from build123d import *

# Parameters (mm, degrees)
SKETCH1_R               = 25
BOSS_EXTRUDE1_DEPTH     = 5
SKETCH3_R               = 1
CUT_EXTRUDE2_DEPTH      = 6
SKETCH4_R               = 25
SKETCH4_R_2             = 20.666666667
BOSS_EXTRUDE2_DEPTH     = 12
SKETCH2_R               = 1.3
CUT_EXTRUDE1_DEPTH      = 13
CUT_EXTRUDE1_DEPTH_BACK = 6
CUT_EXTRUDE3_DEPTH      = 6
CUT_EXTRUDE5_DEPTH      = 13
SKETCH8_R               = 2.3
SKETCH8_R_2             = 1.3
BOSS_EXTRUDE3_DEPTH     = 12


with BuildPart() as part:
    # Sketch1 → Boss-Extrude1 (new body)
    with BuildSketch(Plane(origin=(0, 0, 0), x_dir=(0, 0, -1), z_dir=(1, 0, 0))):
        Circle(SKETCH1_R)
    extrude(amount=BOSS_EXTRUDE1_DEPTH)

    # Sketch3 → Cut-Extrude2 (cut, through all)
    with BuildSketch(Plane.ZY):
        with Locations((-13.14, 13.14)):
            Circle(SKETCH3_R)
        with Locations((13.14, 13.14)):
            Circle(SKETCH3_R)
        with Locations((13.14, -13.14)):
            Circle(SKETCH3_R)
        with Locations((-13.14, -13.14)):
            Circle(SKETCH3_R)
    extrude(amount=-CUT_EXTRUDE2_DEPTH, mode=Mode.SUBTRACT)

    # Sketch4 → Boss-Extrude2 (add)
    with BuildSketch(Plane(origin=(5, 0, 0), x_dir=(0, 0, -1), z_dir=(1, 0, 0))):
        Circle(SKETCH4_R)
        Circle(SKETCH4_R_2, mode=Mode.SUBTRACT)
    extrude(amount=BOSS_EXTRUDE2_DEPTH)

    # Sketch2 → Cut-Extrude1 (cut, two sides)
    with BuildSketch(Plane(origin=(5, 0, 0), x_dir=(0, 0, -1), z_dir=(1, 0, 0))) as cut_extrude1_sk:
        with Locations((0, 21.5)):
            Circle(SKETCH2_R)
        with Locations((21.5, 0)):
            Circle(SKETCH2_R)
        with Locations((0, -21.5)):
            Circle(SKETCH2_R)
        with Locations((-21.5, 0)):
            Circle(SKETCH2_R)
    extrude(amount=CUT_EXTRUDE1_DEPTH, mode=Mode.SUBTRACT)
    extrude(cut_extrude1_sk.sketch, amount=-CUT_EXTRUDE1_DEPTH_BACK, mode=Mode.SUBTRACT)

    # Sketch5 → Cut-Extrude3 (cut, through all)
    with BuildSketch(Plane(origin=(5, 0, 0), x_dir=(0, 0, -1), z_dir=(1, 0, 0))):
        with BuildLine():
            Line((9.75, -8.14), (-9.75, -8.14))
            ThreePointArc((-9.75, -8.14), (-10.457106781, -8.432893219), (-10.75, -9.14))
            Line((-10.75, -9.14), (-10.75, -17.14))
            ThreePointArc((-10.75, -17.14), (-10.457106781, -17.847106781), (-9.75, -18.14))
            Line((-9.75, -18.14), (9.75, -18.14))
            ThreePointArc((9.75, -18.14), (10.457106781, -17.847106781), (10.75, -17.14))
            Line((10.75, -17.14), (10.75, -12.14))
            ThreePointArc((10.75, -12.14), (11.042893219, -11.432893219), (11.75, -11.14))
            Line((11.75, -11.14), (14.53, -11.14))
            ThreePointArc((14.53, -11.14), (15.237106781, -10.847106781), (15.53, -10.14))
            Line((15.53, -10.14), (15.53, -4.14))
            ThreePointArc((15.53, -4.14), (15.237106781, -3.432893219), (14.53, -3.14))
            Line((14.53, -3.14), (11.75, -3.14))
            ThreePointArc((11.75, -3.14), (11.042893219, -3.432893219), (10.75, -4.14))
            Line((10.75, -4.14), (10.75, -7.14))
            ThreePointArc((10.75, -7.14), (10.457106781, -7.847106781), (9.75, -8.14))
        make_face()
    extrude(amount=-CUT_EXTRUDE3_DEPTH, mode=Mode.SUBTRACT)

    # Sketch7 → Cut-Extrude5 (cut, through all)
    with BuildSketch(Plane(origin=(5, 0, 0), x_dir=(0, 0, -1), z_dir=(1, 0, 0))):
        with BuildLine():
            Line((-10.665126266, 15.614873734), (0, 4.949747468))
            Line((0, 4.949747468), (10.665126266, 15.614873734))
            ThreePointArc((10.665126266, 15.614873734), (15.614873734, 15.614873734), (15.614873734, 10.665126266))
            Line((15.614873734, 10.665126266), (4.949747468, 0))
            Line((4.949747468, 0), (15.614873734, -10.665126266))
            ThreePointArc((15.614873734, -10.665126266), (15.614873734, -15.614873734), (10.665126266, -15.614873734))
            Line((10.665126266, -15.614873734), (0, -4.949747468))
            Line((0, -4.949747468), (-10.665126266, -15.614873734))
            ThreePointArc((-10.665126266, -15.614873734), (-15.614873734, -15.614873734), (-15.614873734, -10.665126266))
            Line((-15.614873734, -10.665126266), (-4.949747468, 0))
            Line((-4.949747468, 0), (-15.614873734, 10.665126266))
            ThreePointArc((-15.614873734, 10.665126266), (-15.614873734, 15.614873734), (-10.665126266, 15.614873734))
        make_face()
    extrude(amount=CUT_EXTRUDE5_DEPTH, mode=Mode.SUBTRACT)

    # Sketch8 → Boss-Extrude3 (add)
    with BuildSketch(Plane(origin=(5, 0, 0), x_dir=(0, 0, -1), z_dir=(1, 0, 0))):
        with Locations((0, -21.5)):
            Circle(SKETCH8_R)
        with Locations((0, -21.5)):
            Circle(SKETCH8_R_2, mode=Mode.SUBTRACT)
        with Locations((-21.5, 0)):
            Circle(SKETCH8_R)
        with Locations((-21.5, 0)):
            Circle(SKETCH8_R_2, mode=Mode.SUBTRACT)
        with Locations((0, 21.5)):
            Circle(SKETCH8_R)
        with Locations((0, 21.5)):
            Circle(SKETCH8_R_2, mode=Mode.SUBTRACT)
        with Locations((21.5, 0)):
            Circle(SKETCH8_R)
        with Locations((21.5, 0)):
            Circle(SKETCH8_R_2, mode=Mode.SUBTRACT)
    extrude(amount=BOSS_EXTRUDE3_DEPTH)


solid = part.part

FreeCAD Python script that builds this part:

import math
import FreeCAD as App
import Part
import Sketcher

V = App.Vector
Q = App.Units.Quantity

doc = App.newDocument("Part")
body = doc.addObject("PartDesign::Body", "Body")

sketch1 = body.newObject("Sketcher::SketchObject", "Sketch")
sketch1.AttachmentSupport = (doc.getObject("YZ_Plane"), [""])
sketch1.MapMode = "FlatFace"
sketch1.addGeometry(Part.Circle(V(0, 0, 0), V(0, 0, 1), 25), False)
sketch1.addConstraint(Sketcher.Constraint("Coincident", 0, 3, -1, 1))
sketch1.addConstraint(Sketcher.Constraint("Diameter", 0, Q("50 mm")))
pad1 = body.newObject("PartDesign::Pad", "Pad")
pad1.Profile = sketch1
pad1.Length = 5

sketch2 = body.newObject("Sketcher::SketchObject", "Sketch001")
sketch2.AttachmentSupport = (doc.getObject("YZ_Plane"), [""])
sketch2.MapMode = "FlatFace"
sketch2.addGeometry(Part.Circle(V(13.14, -13.14, 0), V(0, 0, 1), 1), False)
sketch2.addGeometry(Part.Circle(V(13.14, 13.14, 0), V(0, 0, 1), 1), False)
sketch2.addGeometry(Part.Circle(V(-13.14, 13.14, 0), V(0, 0, 1), 1), False)
sketch2.addGeometry(Part.Circle(V(-13.14, -13.14, 0), V(0, 0, 1), 1), False)
sketch2.addConstraint(Sketcher.Constraint("Equal", 0, 1))
sketch2.addConstraint(Sketcher.Constraint("Equal", 1, 2))
sketch2.addConstraint(Sketcher.Constraint("Equal", 2, 3))
sketch2.addConstraint(Sketcher.Constraint("Symmetric", 0, 3, 2, 3, -1, 1))
sketch2.addConstraint(Sketcher.Constraint("Symmetric", 1, 3, 3, 3, -1, 1))
sketch2.addConstraint(Sketcher.Constraint("Symmetric", 1, 3, 2, 3, -2))
sketch2.addConstraint(Sketcher.Constraint("Diameter", 0, Q("2 mm")))
sketch2.addConstraint(Sketcher.Constraint("DistanceX", -1, 1, 0, 3, Q("13.14 mm")))
sketch2.addConstraint(Sketcher.Constraint("DistanceY", 0, 3, -1, 1, Q("13.14 mm")))
pocket1 = body.newObject("PartDesign::Pocket", "Pocket")
pocket1.Profile = sketch2
pocket1.Type = "ThroughAll"
pocket1.Reversed = True

sketch3 = body.newObject("Sketcher::SketchObject", "Sketch002")
sketch3.AttachmentSupport = (doc.getObject("YZ_Plane"), [""])
sketch3.MapMode = "FlatFace"
sketch3.AttachmentOffset = App.Placement(V(0, 0, 5), App.Rotation())
sketch3.addGeometry(Part.Circle(V(0, 0, 0), V(0, 0, 1), 25), False)
sketch3.addGeometry(Part.Circle(V(0, 0, 0), V(0, 0, 1), 20.666667), False)
sketch3.addConstraint(Sketcher.Constraint("Coincident", 0, 3, -1, 1))
sketch3.addConstraint(Sketcher.Constraint("Coincident", 1, 3, -1, 1))
sketch3.addConstraint(Sketcher.Constraint("Diameter", 0, Q("50 mm")))
sketch3.addConstraint(Sketcher.Constraint("Diameter", 1, Q("41.333333 mm")))
pad2 = body.newObject("PartDesign::Pad", "Pad001")
pad2.Profile = sketch3
pad2.Length = 12

sketch4 = body.newObject("Sketcher::SketchObject", "Sketch003")
sketch4.AttachmentSupport = (doc.getObject("YZ_Plane"), [""])
sketch4.MapMode = "FlatFace"
sketch4.AttachmentOffset = App.Placement(V(0, 0, 5), App.Rotation())
sketch4.addGeometry(Part.Circle(V(21.5, 0, 0), V(0, 0, 1), 1.3), False)
sketch4.addGeometry(Part.Circle(V(0, -21.5, 0), V(0, 0, 1), 1.3), False)
sketch4.addGeometry(Part.Circle(V(-21.5, 0, 0), V(0, 0, 1), 1.3), False)
sketch4.addGeometry(Part.Circle(V(0, 21.5, 0), V(0, 0, 1), 1.3), False)
sketch4.addConstraint(Sketcher.Constraint("Equal", 0, 1))
sketch4.addConstraint(Sketcher.Constraint("Equal", 1, 2))
sketch4.addConstraint(Sketcher.Constraint("Equal", 2, 3))
sketch4.addConstraint(Sketcher.Constraint("Symmetric", 0, 3, 2, 3, -1, 1))
sketch4.addConstraint(Sketcher.Constraint("Symmetric", 1, 3, 3, 3, -1, 1))
sketch4.addConstraint(Sketcher.Constraint("PointOnObject", 0, 3, -1))
sketch4.addConstraint(Sketcher.Constraint("PointOnObject", 1, 3, -2))
sketch4.addConstraint(Sketcher.Constraint("Diameter", 0, Q("2.6 mm")))
sketch4.addConstraint(Sketcher.Constraint("DistanceX", 2, 3, 0, 3, Q("43 mm")))
sketch4.addConstraint(Sketcher.Constraint("DistanceY", 1, 3, 3, 3, Q("43 mm")))
pocket2 = body.newObject("PartDesign::Pocket", "Pocket001")
pocket2.Profile = sketch4
pocket2.Type = "ThroughAll"
pocket2.Midplane = True

sketch5 = body.newObject("Sketcher::SketchObject", "Sketch004")
sketch5.AttachmentSupport = (doc.getObject("YZ_Plane"), [""])
sketch5.MapMode = "FlatFace"
sketch5.AttachmentOffset = App.Placement(V(0, 0, 5), App.Rotation())
sketch5.addGeometry(Part.LineSegment(V(-8.14, -9.75, 0), V(-8.14, 9.75, 0)), False)
sketch5.addGeometry(Part.ArcOfCircle(Part.Circle(V(-9.14, 9.75, 0), V(0, 0, 1), 1), math.radians(0), math.radians(90)), False)
sketch5.addGeometry(Part.LineSegment(V(-9.14, 10.75, 0), V(-17.14, 10.75, 0)), False)
sketch5.addGeometry(Part.ArcOfCircle(Part.Circle(V(-17.14, 9.75, 0), V(0, 0, 1), 1), math.radians(90), math.radians(180)), False)
sketch5.addGeometry(Part.LineSegment(V(-18.14, 9.75, 0), V(-18.14, -9.75, 0)), False)
sketch5.addGeometry(Part.ArcOfCircle(Part.Circle(V(-17.14, -9.75, 0), V(0, 0, 1), 1), math.radians(-180), math.radians(-90)), False)
sketch5.addGeometry(Part.LineSegment(V(-17.14, -10.75, 0), V(-12.14, -10.75, 0)), False)
sketch5.addGeometry(Part.ArcOfCircle(Part.Circle(V(-12.14, -11.75, 0), V(0, 0, 1), 1), math.radians(0), math.radians(90)), False)
sketch5.addGeometry(Part.LineSegment(V(-11.14, -11.75, 0), V(-11.14, -14.53, 0)), False)
sketch5.addGeometry(Part.ArcOfCircle(Part.Circle(V(-10.14, -14.53, 0), V(0, 0, 1), 1), math.radians(-180), math.radians(-90)), False)
sketch5.addGeometry(Part.LineSegment(V(-10.14, -15.53, 0), V(-4.14, -15.53, 0)), False)
sketch5.addGeometry(Part.ArcOfCircle(Part.Circle(V(-4.14, -14.53, 0), V(0, 0, 1), 1), math.radians(-90), math.radians(0)), False)
sketch5.addGeometry(Part.LineSegment(V(-3.14, -14.53, 0), V(-3.14, -11.75, 0)), False)
sketch5.addGeometry(Part.ArcOfCircle(Part.Circle(V(-4.14, -11.75, 0), V(0, 0, 1), 1), math.radians(0), math.radians(90)), False)
sketch5.addGeometry(Part.LineSegment(V(-4.14, -10.75, 0), V(-7.14, -10.75, 0)), False)
sketch5.addGeometry(Part.ArcOfCircle(Part.Circle(V(-7.14, -9.75, 0), V(0, 0, 1), 1), math.radians(-180), math.radians(-90)), False)
sketch5.addConstraint(Sketcher.Constraint("Tangent", 0, 2, 1, 1))
sketch5.addConstraint(Sketcher.Constraint("Tangent", 1, 2, 2, 1))
sketch5.addConstraint(Sketcher.Constraint("Tangent", 2, 2, 3, 1))
sketch5.addConstraint(Sketcher.Constraint("Tangent", 3, 2, 4, 1))
sketch5.addConstraint(Sketcher.Constraint("Tangent", 4, 2, 5, 1))
sketch5.addConstraint(Sketcher.Constraint("Tangent", 5, 2, 6, 1))
sketch5.addConstraint(Sketcher.Constraint("Tangent", 6, 2, 7, 2))
sketch5.addConstraint(Sketcher.Constraint("Tangent", 7, 1, 8, 1))
sketch5.addConstraint(Sketcher.Constraint("Tangent", 8, 2, 9, 1))
sketch5.addConstraint(Sketcher.Constraint("Tangent", 9, 2, 10, 1))
sketch5.addConstraint(Sketcher.Constraint("Tangent", 10, 2, 11, 1))
sketch5.addConstraint(Sketcher.Constraint("Tangent", 11, 2, 12, 1))
sketch5.addConstraint(Sketcher.Constraint("Tangent", 12, 2, 13, 1))
sketch5.addConstraint(Sketcher.Constraint("Tangent", 13, 2, 14, 1))
sketch5.addConstraint(Sketcher.Constraint("Tangent", 14, 2, 15, 2))
sketch5.addConstraint(Sketcher.Constraint("Tangent", 15, 1, 0, 1))
sketch5.addConstraint(Sketcher.Constraint("Vertical", 0))
sketch5.addConstraint(Sketcher.Constraint("Horizontal", 2))
sketch5.addConstraint(Sketcher.Constraint("Vertical", 4))
sketch5.addConstraint(Sketcher.Constraint("Horizontal", 6))
sketch5.addConstraint(Sketcher.Constraint("Vertical", 8))
sketch5.addConstraint(Sketcher.Constraint("Horizontal", 10))
sketch5.addConstraint(Sketcher.Constraint("Vertical", 12))
sketch5.addConstraint(Sketcher.Constraint("Horizontal", 14))
sketch5.addConstraint(Sketcher.Constraint("Equal", 1, 3))
sketch5.addConstraint(Sketcher.Constraint("Equal", 3, 5))
sketch5.addConstraint(Sketcher.Constraint("Equal", 5, 7))
sketch5.addConstraint(Sketcher.Constraint("Equal", 7, 9))
sketch5.addConstraint(Sketcher.Constraint("Equal", 9, 11))
sketch5.addConstraint(Sketcher.Constraint("Equal", 11, 13))
sketch5.addConstraint(Sketcher.Constraint("Equal", 13, 15))
sketch5.addConstraint(Sketcher.Constraint("Horizontal", 7, 3, 13, 3))
sketch5.addConstraint(Sketcher.Constraint("Radius", 1, Q("1 mm")))
sketch5.addConstraint(Sketcher.Constraint("DistanceX", 2, 2, 2, 1, Q("8 mm")))
sketch5.addConstraint(Sketcher.Constraint("DistanceX", 6, 1, 6, 2, Q("5 mm")))
sketch5.addConstraint(Sketcher.Constraint("DistanceX", 10, 1, 10, 2, Q("6 mm")))
sketch5.addConstraint(Sketcher.Constraint("DistanceY", 0, 1, 0, 2, Q("19.5 mm")))
sketch5.addConstraint(Sketcher.Constraint("DistanceY", 8, 2, 8, 1, Q("2.78 mm")))
sketch5.addConstraint(Sketcher.Constraint("DistanceX", 1, 3, -1, 1, Q("9.14 mm")))
sketch5.addConstraint(Sketcher.Constraint("DistanceY", -1, 1, 1, 3, Q("9.75 mm")))
pocket3 = body.newObject("PartDesign::Pocket", "Pocket002")
pocket3.Profile = sketch5
pocket3.Type = "ThroughAll"

sketch6 = body.newObject("Sketcher::SketchObject", "Sketch005")
sketch6.AttachmentSupport = (doc.getObject("YZ_Plane"), [""])
sketch6.MapMode = "FlatFace"
sketch6.AttachmentOffset = App.Placement(V(0, 0, 5), App.Rotation())
sketch6.addGeometry(Part.LineSegment(V(4.949747, 0, 0), V(15.614874, 10.665126, 0)), False)
sketch6.addGeometry(Part.ArcOfCircle(Part.Circle(V(13.14, 13.14, 0), V(0, 0, 1), 3.5), math.radians(-45), math.radians(135)), False)
sketch6.addGeometry(Part.LineSegment(V(10.665126, 15.614874, 0), V(0, 4.949747, 0)), False)
sketch6.addGeometry(Part.LineSegment(V(0, 4.949747, 0), V(-10.665126, 15.614874, 0)), False)
sketch6.addGeometry(Part.ArcOfCircle(Part.Circle(V(-13.14, 13.14, 0), V(0, 0, 1), 3.5), math.radians(45), math.radians(225)), False)
sketch6.addGeometry(Part.LineSegment(V(-15.614874, 10.665126, 0), V(-4.949747, 0, 0)), False)
sketch6.addGeometry(Part.LineSegment(V(-4.949747, 0, 0), V(-15.614874, -10.665126, 0)), False)
sketch6.addGeometry(Part.ArcOfCircle(Part.Circle(V(-13.14, -13.14, 0), V(0, 0, 1), 3.5), math.radians(135), math.radians(315)), False)
sketch6.addGeometry(Part.LineSegment(V(-10.665126, -15.614874, 0), V(0, -4.949747, 0)), False)
sketch6.addGeometry(Part.LineSegment(V(0, -4.949747, 0), V(10.665126, -15.614874, 0)), False)
sketch6.addGeometry(Part.ArcOfCircle(Part.Circle(V(13.14, -13.14, 0), V(0, 0, 1), 3.5), math.radians(-135), math.radians(45)), False)
sketch6.addGeometry(Part.LineSegment(V(15.614874, -10.665126, 0), V(4.949747, 0, 0)), False)
sketch6.addConstraint(Sketcher.Constraint("Tangent", 0, 2, 1, 1))
sketch6.addConstraint(Sketcher.Constraint("Tangent", 1, 2, 2, 1))
sketch6.addConstraint(Sketcher.Constraint("Coincident", 2, 2, 3, 1))
sketch6.addConstraint(Sketcher.Constraint("Tangent", 3, 2, 4, 1))
sketch6.addConstraint(Sketcher.Constraint("Tangent", 4, 2, 5, 1))
sketch6.addConstraint(Sketcher.Constraint("Coincident", 5, 2, 6, 1))
sketch6.addConstraint(Sketcher.Constraint("Tangent", 6, 2, 7, 1))
sketch6.addConstraint(Sketcher.Constraint("Tangent", 7, 2, 8, 1))
sketch6.addConstraint(Sketcher.Constraint("Coincident", 8, 2, 9, 1))
sketch6.addConstraint(Sketcher.Constraint("Tangent", 9, 2, 10, 1))
sketch6.addConstraint(Sketcher.Constraint("Tangent", 10, 2, 11, 1))
sketch6.addConstraint(Sketcher.Constraint("Coincident", 11, 2, 0, 1))
sketch6.addConstraint(Sketcher.Constraint("Equal", 1, 4))
sketch6.addConstraint(Sketcher.Constraint("Equal", 4, 7))
sketch6.addConstraint(Sketcher.Constraint("Equal", 7, 10))
sketch6.addConstraint(Sketcher.Constraint("Symmetric", 1, 3, 7, 3, -1, 1))
sketch6.addConstraint(Sketcher.Constraint("Symmetric", 4, 3, 10, 3, -1, 1))
sketch6.addConstraint(Sketcher.Constraint("Symmetric", 2, 2, 8, 2, -1, 1))
sketch6.addConstraint(Sketcher.Constraint("Symmetric", 5, 2, 11, 2, -1, 1))
sketch6.addConstraint(Sketcher.Constraint("Symmetric", 1, 3, 4, 3, -2))
sketch6.addConstraint(Sketcher.Constraint("PointOnObject", 2, 2, -2))
sketch6.addConstraint(Sketcher.Constraint("PointOnObject", 5, 2, -1))
sketch6.addConstraint(Sketcher.Constraint("Parallel", 0, 2))
sketch6.addConstraint(Sketcher.Constraint("Perpendicular", 2, 3))
sketch6.addConstraint(Sketcher.Constraint("Equal", 0, 2))
sketch6.addConstraint(Sketcher.Constraint("Radius", 1, Q("3.5 mm")))
sketch6.addConstraint(Sketcher.Constraint("DistanceX", -1, 1, 1, 3, Q("13.14 mm")))
pocket4 = body.newObject("PartDesign::Pocket", "Pocket003")
pocket4.Profile = sketch6
pocket4.Type = "ThroughAll"
pocket4.Reversed = True

sketch7 = body.newObject("Sketcher::SketchObject", "Sketch006")
sketch7.AttachmentSupport = (doc.getObject("YZ_Plane"), [""])
sketch7.MapMode = "FlatFace"
sketch7.AttachmentOffset = App.Placement(V(0, 0, 5), App.Rotation())
sketch7.addGeometry(Part.Circle(V(-21.5, 0, 0), V(0, 0, 1), 2.3), False)
sketch7.addGeometry(Part.Circle(V(-21.5, 0, 0), V(0, 0, 1), 1.3), False)
sketch7.addGeometry(Part.Circle(V(0, 21.5, 0), V(0, 0, 1), 2.3), False)
sketch7.addGeometry(Part.Circle(V(0, 21.5, 0), V(0, 0, 1), 1.3), False)
sketch7.addGeometry(Part.Circle(V(21.5, 0, 0), V(0, 0, 1), 2.3), False)
sketch7.addGeometry(Part.Circle(V(21.5, 0, 0), V(0, 0, 1), 1.3), False)
sketch7.addGeometry(Part.Circle(V(0, -21.5, 0), V(0, 0, 1), 2.3), False)
sketch7.addGeometry(Part.Circle(V(0, -21.5, 0), V(0, 0, 1), 1.3), False)
sketch7.addConstraint(Sketcher.Constraint("Coincident", 1, 3, 0, 3))
sketch7.addConstraint(Sketcher.Constraint("Coincident", 3, 3, 2, 3))
sketch7.addConstraint(Sketcher.Constraint("Coincident", 5, 3, 4, 3))
sketch7.addConstraint(Sketcher.Constraint("Coincident", 7, 3, 6, 3))
sketch7.addConstraint(Sketcher.Constraint("Equal", 0, 2))
sketch7.addConstraint(Sketcher.Constraint("Equal", 1, 3))
sketch7.addConstraint(Sketcher.Constraint("Equal", 2, 4))
sketch7.addConstraint(Sketcher.Constraint("Equal", 3, 5))
sketch7.addConstraint(Sketcher.Constraint("Equal", 4, 6))
sketch7.addConstraint(Sketcher.Constraint("Equal", 5, 7))
sketch7.addConstraint(Sketcher.Constraint("Symmetric", 0, 3, 4, 3, -1, 1))
sketch7.addConstraint(Sketcher.Constraint("Symmetric", 2, 3, 6, 3, -1, 1))
sketch7.addConstraint(Sketcher.Constraint("PointOnObject", 0, 3, -1))
sketch7.addConstraint(Sketcher.Constraint("PointOnObject", 2, 3, -2))
sketch7.addConstraint(Sketcher.Constraint("Diameter", 0, Q("4.6 mm")))
sketch7.addConstraint(Sketcher.Constraint("Diameter", 1, Q("2.6 mm")))
sketch7.addConstraint(Sketcher.Constraint("DistanceX", 0, 3, 4, 3, Q("43 mm")))
sketch7.addConstraint(Sketcher.Constraint("DistanceY", 6, 3, 2, 3, Q("43 mm")))
pad3 = body.newObject("PartDesign::Pad", "Pad002")
pad3.Profile = sketch7
pad3.Length = 12

doc.recompute()
